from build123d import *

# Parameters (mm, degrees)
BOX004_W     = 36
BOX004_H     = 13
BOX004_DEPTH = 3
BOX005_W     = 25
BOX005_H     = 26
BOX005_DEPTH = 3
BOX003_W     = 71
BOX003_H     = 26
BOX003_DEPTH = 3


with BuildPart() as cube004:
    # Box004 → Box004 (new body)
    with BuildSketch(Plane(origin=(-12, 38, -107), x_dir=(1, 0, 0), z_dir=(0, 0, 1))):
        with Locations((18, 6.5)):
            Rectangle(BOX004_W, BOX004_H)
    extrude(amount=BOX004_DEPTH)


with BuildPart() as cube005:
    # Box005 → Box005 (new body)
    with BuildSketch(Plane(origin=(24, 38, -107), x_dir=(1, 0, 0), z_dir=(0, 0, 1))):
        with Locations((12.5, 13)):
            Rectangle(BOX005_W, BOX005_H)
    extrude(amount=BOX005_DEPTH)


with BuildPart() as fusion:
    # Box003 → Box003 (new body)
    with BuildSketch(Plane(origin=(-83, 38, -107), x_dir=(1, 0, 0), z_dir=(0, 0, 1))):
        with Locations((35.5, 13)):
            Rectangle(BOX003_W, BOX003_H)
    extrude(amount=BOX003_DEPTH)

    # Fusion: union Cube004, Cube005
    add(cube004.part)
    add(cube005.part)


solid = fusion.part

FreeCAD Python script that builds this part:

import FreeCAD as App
import Part
import Sketcher

V = App.Vector


def add_polygon(sketch, points):
    """Adds a closed chain of lines whose ends are joined by coincident constraints."""
    first, n = sketch.GeometryCount, len(points)
    for a, b in zip(points, points[1:] + points[:1]):
        sketch.addGeometry(Part.LineSegment(App.Vector(*a, 0), App.Vector(*b, 0)), False)
    for i in range(n):
        sketch.addConstraint(Sketcher.Constraint("Coincident", first + i, 2, first + (i + 1) % n, 1))

doc = App.newDocument("Part")
body = doc.addObject("PartDesign::Body", "Body")

sketch1 = doc.addObject("Sketcher::SketchObject", "Sketch")
body.addObject(sketch1)
sketch1.AttachmentSupport = (doc.XY_Plane, [""])
sketch1.MapMode = "FlatFace"
sketch1.AttachmentOffset = App.Placement(V(0, 0, -107), App.Rotation())
add_polygon(sketch1, [(-12, 51), (-12, 38), (24, 38), (24, 51)])
sketch1.addConstraint([
    Sketcher.Constraint("Vertical", 0),
    Sketcher.Constraint("Horizontal", 1),
    Sketcher.Constraint("Vertical", 2),
    Sketcher.Constraint("Horizontal", 3),
    Sketcher.Constraint("DistanceX", 1, 1, 1, 2, 36.0),
    Sketcher.Constraint("DistanceY", 0, 2, 0, 1, 13.0),
    Sketcher.Constraint("DistanceX", 0, 2, -1, 1, 12.0),
    Sketcher.Constraint("DistanceY", -1, 1, 0, 2, 38.0),
])
pad1 = doc.addObject("PartDesign::Pad", "Pad")
body.addObject(pad1)
pad1.Profile = sketch1
pad1.Length = 3
body2 = doc.addObject("PartDesign::Body", "Body001")

sketch2 = doc.addObject("Sketcher::SketchObject", "Sketch001")
body2.addObject(sketch2)
sketch2.AttachmentSupport = (doc.getObject("XY_Plane001"), [""])
sketch2.MapMode = "FlatFace"
sketch2.AttachmentOffset = App.Placement(V(0, 0, -107), App.Rotation())
add_polygon(sketch2, [(24, 64), (24, 38), (49, 38), (49, 64)])
sketch2.addConstraint([
    Sketcher.Constraint("Vertical", 0),
    Sketcher.Constraint("Horizontal", 1),
    Sketcher.Constraint("Vertical", 2),
    Sketcher.Constraint("Horizontal", 3),
    Sketcher.Constraint("DistanceX", 1, 1, 1, 2, 25.0),
    Sketcher.Constraint("DistanceY", 0, 2, 0, 1, 26.0),
    Sketcher.Constraint("DistanceX", -1, 1, 0, 2, 24.0),
    Sketcher.Constraint("DistanceY", -1, 1, 0, 2, 38.0),
])
pad2 = doc.addObject("PartDesign::Pad", "Pad001")
body2.addObject(pad2)
pad2.Profile = sketch2
pad2.Length = 3
body3 = doc.addObject("PartDesign::Body", "Body002")

sketch3 = doc.addObject("Sketcher::SketchObject", "Sketch002")
body3.addObject(sketch3)
sketch3.AttachmentSupport = (doc.getObject("XY_Plane002"), [""])
sketch3.MapMode = "FlatFace"
sketch3.AttachmentOffset = App.Placement(V(0, 0, -107), App.Rotation())
add_polygon(sketch3, [(-83, 64), (-83, 38), (-12, 38), (-12, 64)])
sketch3.addConstraint([
    Sketcher.Constraint("Vertical", 0),
    Sketcher.Constraint("Horizontal", 1),
    Sketcher.Constraint("Vertical", 2),
    Sketcher.Constraint("Horizontal", 3),
    Sketcher.Constraint("DistanceX", 1, 1, 1, 2, 71.0),
    Sketcher.Constraint("DistanceY", 0, 2, 0, 1, 26.0),
    Sketcher.Constraint("DistanceX", 0, 2, -1, 1, 83.0),
    Sketcher.Constraint("DistanceY", -1, 1, 0, 2, 38.0),
])
pad3 = doc.addObject("PartDesign::Pad", "Pad002")
body3.addObject(pad3)
pad3.Profile = sketch3
pad3.Length = 3
doc.recompute()

boolean = doc.addObject("PartDesign::Boolean", "Boolean")
body3.addObject(boolean)
boolean.Type = "Fuse"
boolean.addObjects([body])
doc.recompute()

boolean2 = doc.addObject("PartDesign::Boolean", "Boolean001")
body3.addObject(boolean2)
boolean2.Type = "Fuse"
boolean2.addObjects([body2])

doc.recompute()
